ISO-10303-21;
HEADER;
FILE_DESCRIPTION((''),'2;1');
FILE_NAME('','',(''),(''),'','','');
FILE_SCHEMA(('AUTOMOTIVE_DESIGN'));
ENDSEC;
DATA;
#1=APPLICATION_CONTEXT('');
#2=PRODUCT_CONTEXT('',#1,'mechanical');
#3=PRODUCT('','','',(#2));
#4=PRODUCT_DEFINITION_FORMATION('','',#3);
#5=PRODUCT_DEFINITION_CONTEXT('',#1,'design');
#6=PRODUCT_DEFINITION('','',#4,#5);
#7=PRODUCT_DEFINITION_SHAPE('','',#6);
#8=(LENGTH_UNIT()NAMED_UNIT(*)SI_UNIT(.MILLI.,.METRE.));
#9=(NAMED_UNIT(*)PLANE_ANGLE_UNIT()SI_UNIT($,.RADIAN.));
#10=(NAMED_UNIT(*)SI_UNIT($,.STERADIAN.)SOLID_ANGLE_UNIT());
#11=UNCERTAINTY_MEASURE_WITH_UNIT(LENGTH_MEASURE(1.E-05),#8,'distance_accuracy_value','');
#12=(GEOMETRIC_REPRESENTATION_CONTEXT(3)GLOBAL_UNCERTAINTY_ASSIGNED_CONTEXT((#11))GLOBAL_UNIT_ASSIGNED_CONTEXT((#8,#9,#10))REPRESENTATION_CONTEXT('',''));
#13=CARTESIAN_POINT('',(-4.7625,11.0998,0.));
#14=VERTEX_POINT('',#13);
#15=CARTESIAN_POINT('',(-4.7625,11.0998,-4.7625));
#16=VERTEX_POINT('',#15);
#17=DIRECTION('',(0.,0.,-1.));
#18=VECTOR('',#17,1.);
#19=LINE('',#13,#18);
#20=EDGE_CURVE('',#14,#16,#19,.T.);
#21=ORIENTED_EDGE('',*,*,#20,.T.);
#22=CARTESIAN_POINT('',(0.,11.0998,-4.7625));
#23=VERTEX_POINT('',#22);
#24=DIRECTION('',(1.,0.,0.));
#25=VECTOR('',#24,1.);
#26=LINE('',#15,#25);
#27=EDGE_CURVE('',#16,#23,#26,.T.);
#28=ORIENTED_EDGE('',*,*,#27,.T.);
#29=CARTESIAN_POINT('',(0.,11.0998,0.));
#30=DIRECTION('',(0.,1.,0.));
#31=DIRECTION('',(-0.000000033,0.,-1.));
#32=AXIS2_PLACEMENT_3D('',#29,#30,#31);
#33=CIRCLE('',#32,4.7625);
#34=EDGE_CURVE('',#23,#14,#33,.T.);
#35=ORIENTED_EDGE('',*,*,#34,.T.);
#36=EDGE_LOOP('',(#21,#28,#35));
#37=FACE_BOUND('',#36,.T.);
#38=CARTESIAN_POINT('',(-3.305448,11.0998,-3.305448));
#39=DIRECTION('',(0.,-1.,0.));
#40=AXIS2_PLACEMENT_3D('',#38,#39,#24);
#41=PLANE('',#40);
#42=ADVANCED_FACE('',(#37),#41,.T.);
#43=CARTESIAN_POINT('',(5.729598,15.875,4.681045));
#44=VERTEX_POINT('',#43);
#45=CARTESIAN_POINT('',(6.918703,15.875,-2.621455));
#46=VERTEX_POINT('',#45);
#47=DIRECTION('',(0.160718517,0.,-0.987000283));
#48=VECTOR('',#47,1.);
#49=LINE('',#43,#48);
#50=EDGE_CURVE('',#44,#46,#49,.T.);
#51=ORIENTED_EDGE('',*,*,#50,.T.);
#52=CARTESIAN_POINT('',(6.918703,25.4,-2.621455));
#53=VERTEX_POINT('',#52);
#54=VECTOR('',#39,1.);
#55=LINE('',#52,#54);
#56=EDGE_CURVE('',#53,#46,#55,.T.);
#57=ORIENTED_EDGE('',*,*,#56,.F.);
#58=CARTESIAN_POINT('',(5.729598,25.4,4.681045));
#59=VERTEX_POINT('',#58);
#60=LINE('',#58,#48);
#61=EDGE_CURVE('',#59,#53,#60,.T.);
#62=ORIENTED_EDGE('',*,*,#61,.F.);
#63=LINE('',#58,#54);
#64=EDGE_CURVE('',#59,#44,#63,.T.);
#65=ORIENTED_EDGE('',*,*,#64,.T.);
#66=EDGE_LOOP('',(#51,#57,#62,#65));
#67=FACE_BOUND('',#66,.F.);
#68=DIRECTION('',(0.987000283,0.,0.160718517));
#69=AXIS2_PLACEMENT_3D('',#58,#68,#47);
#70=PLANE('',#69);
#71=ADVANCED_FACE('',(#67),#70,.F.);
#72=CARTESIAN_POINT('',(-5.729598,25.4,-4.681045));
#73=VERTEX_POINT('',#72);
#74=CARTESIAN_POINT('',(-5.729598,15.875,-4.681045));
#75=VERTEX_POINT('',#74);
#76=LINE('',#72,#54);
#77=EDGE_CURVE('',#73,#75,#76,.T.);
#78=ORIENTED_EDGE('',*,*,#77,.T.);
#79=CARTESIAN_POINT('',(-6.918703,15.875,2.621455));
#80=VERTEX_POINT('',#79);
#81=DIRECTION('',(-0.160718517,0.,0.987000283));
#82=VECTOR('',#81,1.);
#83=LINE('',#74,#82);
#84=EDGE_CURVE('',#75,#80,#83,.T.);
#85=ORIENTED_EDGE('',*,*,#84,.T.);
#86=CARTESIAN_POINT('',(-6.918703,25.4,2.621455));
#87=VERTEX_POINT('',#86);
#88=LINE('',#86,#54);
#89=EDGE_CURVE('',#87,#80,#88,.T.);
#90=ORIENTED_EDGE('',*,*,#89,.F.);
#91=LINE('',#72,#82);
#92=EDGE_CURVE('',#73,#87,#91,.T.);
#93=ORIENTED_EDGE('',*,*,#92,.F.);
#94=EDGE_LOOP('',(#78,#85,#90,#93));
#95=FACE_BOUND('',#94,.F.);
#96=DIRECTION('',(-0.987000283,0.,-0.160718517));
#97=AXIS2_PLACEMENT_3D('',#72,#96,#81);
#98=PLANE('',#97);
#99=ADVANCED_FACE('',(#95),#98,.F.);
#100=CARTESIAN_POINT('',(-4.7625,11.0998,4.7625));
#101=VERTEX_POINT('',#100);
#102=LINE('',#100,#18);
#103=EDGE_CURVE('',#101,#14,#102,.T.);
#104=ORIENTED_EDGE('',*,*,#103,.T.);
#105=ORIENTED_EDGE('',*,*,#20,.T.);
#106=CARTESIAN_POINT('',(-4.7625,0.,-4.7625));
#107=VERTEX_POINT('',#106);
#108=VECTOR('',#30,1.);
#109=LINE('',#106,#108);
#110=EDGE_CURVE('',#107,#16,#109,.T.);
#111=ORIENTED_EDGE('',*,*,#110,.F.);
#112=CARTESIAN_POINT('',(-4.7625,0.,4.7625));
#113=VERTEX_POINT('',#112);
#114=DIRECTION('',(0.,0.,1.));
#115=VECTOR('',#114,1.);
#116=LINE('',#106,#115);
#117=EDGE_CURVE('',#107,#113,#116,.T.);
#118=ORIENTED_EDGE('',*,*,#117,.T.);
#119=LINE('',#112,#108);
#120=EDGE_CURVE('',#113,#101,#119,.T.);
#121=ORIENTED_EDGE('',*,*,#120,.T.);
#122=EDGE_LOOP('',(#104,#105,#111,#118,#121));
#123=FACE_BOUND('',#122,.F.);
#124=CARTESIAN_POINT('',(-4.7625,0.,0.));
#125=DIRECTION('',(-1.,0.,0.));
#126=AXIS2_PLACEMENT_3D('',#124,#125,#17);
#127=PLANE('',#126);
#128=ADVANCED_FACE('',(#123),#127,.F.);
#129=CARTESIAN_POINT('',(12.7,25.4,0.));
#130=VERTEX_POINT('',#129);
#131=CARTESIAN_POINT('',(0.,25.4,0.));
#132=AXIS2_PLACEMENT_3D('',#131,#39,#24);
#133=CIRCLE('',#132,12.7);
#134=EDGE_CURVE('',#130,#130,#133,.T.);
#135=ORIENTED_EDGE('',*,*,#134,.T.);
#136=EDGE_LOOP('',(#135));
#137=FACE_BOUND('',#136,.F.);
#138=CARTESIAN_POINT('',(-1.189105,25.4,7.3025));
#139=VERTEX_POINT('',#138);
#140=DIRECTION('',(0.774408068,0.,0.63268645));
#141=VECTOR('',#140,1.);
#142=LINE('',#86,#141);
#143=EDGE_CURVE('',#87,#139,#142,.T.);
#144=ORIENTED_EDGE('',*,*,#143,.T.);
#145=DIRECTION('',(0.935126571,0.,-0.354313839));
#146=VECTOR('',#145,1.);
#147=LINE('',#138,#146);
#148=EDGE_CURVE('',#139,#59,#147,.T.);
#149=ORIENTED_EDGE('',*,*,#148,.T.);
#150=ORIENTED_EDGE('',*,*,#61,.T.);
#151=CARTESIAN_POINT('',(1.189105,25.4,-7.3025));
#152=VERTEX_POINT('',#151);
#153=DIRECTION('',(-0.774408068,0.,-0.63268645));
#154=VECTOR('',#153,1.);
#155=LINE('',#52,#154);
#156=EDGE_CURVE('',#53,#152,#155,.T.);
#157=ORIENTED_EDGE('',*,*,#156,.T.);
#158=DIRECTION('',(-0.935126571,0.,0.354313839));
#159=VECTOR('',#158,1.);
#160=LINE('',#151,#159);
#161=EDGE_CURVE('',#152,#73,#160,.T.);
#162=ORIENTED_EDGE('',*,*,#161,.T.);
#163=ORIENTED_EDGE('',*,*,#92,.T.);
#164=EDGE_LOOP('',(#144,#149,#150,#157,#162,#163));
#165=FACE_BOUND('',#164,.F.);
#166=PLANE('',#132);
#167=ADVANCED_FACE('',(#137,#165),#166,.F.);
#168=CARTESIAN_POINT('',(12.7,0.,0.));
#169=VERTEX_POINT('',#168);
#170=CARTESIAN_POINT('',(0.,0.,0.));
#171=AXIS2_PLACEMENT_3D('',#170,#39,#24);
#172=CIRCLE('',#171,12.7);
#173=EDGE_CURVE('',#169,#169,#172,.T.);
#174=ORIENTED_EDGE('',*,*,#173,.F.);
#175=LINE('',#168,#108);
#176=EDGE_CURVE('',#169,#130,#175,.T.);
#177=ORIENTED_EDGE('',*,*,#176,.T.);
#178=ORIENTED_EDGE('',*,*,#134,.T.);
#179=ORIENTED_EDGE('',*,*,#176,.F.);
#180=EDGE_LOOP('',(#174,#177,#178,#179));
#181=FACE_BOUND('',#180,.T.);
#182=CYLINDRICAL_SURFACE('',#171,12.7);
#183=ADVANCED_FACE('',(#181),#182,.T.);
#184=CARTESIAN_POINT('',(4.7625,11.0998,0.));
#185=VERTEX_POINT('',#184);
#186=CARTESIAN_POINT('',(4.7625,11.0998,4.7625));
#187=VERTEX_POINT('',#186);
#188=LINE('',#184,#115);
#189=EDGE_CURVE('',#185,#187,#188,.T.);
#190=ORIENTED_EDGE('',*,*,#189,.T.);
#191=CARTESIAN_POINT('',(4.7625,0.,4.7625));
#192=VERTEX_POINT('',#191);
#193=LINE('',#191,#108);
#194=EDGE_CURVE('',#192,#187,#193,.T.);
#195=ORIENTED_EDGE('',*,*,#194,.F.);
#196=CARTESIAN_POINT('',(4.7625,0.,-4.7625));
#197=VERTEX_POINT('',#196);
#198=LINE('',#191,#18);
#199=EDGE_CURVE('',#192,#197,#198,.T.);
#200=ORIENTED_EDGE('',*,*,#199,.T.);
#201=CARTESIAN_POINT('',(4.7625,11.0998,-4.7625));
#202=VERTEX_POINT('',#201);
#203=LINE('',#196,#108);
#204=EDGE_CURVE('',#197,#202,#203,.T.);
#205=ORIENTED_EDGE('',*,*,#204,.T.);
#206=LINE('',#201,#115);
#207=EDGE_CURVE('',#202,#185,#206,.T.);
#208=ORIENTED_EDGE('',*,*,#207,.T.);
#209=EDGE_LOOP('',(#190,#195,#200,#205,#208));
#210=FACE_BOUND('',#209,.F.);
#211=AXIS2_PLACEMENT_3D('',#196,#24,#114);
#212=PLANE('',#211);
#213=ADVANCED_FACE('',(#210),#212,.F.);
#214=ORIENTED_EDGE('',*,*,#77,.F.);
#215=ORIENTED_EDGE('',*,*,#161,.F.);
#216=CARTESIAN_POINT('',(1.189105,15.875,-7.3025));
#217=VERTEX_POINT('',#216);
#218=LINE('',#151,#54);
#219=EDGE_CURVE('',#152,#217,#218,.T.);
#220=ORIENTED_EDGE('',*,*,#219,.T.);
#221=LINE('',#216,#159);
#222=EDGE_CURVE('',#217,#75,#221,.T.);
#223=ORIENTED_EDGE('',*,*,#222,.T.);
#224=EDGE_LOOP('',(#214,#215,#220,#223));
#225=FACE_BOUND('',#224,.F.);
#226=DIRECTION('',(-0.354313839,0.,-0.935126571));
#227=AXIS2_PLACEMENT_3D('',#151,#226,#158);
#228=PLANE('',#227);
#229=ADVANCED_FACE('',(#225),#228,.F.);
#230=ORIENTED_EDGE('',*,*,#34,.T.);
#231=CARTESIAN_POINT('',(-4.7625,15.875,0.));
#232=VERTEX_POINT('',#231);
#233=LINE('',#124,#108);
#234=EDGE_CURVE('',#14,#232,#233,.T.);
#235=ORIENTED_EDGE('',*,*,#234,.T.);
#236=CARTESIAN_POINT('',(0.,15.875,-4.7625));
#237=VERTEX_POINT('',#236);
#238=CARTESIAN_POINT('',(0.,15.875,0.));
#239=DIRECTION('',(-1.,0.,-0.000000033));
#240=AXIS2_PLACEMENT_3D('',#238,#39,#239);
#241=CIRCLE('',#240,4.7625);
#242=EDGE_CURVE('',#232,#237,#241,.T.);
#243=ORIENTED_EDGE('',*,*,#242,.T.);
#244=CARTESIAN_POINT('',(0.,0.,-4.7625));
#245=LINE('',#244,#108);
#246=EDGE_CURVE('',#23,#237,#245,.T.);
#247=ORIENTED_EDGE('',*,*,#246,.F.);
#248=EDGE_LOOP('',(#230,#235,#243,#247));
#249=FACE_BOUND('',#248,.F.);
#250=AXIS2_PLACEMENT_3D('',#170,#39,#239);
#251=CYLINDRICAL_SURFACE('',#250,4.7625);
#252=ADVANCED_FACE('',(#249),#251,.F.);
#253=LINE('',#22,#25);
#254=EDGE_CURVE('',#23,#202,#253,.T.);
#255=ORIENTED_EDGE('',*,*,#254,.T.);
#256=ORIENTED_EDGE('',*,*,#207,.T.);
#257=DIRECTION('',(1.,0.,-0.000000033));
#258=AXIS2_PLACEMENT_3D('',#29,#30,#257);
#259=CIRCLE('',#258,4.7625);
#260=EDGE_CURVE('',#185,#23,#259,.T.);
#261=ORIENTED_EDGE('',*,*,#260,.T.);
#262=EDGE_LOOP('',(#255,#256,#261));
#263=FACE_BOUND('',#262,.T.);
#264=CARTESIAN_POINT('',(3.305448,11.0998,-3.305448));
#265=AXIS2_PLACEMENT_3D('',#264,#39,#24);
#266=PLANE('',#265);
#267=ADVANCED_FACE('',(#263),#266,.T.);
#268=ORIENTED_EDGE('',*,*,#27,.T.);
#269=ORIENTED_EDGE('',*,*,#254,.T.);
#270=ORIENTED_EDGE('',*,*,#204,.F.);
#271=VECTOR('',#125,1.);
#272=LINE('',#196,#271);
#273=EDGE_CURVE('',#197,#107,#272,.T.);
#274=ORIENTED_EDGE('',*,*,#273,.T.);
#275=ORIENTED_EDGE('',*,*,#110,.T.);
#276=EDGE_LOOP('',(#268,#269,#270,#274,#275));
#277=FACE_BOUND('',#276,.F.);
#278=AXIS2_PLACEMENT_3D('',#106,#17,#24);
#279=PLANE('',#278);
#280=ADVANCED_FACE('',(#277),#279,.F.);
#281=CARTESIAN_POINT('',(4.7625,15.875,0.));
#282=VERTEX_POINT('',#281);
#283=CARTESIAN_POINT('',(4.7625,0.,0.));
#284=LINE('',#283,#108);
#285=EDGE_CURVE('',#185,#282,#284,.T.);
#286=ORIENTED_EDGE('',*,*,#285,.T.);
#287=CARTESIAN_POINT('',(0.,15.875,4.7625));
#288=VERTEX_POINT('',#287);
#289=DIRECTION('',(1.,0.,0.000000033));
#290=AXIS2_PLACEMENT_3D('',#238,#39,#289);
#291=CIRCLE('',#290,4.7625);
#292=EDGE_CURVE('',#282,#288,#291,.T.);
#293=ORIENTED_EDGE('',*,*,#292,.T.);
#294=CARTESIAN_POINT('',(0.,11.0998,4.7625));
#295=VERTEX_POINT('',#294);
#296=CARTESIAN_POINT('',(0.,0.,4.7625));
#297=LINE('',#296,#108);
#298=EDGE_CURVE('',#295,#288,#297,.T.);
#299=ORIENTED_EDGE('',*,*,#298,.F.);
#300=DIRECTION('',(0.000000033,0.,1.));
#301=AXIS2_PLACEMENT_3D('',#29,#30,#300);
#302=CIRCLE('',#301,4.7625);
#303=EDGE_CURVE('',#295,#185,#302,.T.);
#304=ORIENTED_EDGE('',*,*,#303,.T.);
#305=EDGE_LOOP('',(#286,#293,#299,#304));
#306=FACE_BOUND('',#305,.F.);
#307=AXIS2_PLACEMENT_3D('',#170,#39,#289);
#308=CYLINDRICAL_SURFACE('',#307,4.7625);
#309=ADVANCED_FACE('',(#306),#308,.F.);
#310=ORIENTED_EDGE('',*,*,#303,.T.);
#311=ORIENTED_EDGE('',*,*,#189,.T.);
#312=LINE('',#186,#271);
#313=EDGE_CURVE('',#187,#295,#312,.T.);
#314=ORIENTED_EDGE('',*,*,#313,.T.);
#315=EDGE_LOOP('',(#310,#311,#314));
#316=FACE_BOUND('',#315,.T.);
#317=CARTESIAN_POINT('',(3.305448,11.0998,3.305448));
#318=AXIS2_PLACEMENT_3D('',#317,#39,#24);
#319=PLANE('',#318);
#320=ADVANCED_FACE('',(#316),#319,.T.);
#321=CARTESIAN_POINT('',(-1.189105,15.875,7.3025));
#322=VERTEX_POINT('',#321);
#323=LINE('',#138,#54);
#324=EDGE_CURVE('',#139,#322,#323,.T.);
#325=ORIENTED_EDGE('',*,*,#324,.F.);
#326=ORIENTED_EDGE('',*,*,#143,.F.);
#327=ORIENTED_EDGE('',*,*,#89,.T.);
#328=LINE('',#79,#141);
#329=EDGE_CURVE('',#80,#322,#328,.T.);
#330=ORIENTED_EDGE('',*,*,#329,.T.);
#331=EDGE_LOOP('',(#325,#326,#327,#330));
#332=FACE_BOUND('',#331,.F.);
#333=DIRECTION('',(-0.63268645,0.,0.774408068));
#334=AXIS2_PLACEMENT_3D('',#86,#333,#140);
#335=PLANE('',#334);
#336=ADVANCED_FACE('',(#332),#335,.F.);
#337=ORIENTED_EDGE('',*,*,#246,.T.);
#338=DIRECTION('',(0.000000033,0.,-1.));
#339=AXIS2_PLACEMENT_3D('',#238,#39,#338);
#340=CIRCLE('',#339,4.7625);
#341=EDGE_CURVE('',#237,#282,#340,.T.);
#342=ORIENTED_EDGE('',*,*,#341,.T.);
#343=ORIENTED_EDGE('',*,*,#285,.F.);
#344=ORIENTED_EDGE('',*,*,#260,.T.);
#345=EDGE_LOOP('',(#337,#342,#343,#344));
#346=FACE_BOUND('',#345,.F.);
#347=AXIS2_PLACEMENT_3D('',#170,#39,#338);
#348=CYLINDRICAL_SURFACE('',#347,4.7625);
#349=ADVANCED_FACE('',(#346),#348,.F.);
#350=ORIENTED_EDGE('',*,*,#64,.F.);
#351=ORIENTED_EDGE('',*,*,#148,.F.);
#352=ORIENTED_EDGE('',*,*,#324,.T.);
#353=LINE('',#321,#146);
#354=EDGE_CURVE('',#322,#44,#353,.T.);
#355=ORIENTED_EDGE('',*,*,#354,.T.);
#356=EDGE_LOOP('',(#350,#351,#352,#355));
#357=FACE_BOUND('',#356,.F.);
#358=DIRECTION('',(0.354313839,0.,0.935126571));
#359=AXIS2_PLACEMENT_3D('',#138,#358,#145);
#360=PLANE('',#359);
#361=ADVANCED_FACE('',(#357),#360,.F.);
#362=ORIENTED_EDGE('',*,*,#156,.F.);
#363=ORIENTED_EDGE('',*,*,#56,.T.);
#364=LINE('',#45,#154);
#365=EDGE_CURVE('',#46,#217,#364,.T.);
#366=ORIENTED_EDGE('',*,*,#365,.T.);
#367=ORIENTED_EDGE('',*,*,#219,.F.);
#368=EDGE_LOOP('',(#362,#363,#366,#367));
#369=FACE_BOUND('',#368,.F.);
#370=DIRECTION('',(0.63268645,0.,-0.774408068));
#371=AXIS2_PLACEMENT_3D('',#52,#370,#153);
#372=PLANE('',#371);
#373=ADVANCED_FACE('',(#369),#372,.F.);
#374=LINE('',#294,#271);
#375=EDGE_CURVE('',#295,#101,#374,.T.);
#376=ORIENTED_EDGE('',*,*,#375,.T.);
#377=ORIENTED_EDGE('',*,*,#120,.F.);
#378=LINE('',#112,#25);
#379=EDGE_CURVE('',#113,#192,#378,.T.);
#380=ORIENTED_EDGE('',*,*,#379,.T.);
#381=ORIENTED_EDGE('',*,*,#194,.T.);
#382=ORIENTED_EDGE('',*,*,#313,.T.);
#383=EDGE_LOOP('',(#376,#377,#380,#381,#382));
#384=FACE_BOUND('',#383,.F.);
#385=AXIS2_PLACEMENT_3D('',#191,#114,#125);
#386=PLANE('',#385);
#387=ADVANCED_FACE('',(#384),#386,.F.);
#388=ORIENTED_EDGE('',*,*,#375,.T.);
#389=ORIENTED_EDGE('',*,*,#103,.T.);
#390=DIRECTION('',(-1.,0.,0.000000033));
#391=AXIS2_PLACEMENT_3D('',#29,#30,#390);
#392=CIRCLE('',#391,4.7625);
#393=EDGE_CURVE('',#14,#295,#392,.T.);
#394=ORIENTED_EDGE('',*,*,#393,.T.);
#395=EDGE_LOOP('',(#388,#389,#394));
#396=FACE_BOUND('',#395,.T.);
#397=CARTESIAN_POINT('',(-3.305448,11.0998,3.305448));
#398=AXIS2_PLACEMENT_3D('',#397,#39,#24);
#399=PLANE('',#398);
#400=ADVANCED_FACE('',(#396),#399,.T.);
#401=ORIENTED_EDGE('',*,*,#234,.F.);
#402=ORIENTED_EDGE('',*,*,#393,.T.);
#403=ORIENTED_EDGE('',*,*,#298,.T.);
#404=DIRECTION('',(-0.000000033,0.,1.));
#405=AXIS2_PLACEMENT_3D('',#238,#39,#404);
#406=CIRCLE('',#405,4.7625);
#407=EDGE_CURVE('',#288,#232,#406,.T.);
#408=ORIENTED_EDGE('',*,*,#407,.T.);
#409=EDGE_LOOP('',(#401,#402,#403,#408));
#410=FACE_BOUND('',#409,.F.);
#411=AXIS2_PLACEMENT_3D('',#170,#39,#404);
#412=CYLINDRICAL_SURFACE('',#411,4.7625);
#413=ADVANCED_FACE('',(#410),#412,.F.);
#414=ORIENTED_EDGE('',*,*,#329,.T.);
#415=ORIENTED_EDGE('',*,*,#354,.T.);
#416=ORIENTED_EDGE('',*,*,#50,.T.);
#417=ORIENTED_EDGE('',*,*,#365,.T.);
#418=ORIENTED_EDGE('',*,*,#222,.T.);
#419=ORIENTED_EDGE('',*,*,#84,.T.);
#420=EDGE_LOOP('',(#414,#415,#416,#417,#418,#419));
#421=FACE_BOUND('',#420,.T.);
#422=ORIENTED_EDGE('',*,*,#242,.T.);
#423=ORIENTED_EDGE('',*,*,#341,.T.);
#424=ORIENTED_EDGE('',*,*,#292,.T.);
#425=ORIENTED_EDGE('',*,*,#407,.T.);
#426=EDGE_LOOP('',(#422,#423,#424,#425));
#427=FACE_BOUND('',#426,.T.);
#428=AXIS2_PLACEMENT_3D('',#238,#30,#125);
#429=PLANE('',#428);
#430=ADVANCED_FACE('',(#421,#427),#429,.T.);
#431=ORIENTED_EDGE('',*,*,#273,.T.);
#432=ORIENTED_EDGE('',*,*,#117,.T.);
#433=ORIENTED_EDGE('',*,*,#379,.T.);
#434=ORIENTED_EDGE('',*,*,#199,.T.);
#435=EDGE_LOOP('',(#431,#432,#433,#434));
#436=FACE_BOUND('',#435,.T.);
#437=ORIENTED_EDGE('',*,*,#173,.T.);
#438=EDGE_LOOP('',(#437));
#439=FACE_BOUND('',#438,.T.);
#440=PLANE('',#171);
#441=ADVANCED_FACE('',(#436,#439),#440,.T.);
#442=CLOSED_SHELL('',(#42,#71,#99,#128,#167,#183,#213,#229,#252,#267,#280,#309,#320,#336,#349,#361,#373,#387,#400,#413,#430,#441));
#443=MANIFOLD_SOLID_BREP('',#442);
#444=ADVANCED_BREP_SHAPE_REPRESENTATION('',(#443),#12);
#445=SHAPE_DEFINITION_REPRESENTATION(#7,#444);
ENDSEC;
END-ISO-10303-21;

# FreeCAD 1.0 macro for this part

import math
import FreeCAD as App
import Part
import Sketcher
Q = App.Units.Quantity


def add_polygon(sketch, points):
    """Adds a closed chain of lines whose ends are joined by coincident constraints."""
    first, n = sketch.GeometryCount, len(points)
    for a, b in zip(points, points[1:] + points[:1]):
        sketch.addGeometry(Part.LineSegment(App.Vector(*a, 0), App.Vector(*b, 0)), False)
    for i in range(n):
        sketch.addConstraint(Sketcher.Constraint("Coincident", first + i, 2, first + (i + 1) % n, 1))

doc = App.newDocument("Part")
body = doc.addObject("PartDesign::Body", "Body")

# Sketch on XZ plane
sketch1 = body.newObject("Sketcher::SketchObject", "Sketch")
sketch1.AttachmentSupport = (doc.getObject("XZ_Plane"), [""])
sketch1.MapMode = "FlatFace"
sketch1.addGeometry(Part.Circle(App.Vector(0, 0, 0), App.Vector(0, 0, 1), 13), False)
sketch1.addConstraint([
    Sketcher.Constraint("Coincident", 0, 3, -1, 1),
    Sketcher.Constraint("Diameter", 0, Q("1 in")),
])
pad1 = body.newObject("PartDesign::Pad", "Pad")
pad1.Profile = sketch1
pad1.Length = Q("1 in")
pad1.Reversed = True

# Sketch on XZ plane
sketch2 = body.newObject("Sketcher::SketchObject", "Sketch001")
sketch2.AttachmentSupport = (doc.getObject("XZ_Plane"), [""])
sketch2.MapMode = "FlatFace"
sketch2.addGeometry([
    Part.ArcOfCircle(Part.Circle(App.Vector(0, 0, 0), App.Vector(0, 0, 1), 4.8), math.radians(-180), math.radians(-90)),
    Part.ArcOfCircle(Part.Circle(App.Vector(0, 0, 0), App.Vector(0, 0, 1), 4.8), math.radians(-90), math.radians(0)),
    Part.ArcOfCircle(Part.Circle(App.Vector(0, 0, 0), App.Vector(0, 0, 1), 4.8), math.radians(0), math.radians(90)),
    Part.ArcOfCircle(Part.Circle(App.Vector(0, 0, 0), App.Vector(0, 0, 1), 4.8), math.radians(90), math.radians(180)),
], False)
sketch2.addConstraint([
    Sketcher.Constraint("Tangent", 0, 2, 1, 1),
    Sketcher.Constraint("Tangent", 1, 2, 2, 1),
    Sketcher.Constraint("Tangent", 2, 2, 3, 1),
    Sketcher.Constraint("Tangent", 3, 2, 0, 1),
    Sketcher.Constraint("Coincident", 0, 3, -1, 1),
    Sketcher.Constraint("Equal", 0, 1),
    Sketcher.Constraint("PointOnObject", 0, 2, -2),
    Sketcher.Constraint("PointOnObject", 1, 2, -1),
    Sketcher.Constraint("PointOnObject", 2, 2, -2),
    Sketcher.Constraint("PointOnObject", 3, 2, -1),
    Sketcher.Constraint("Radius", 0, Q("0.1875 in")),
])
pocket1 = body.newObject("PartDesign::Pocket", "Pocket")
pocket1.Profile = sketch2
pocket1.Type = "ThroughAll"

# Sketch on XZ plane
sketch3 = body.newObject("Sketcher::SketchObject", "Sketch002")
sketch3.AttachmentSupport = (doc.getObject("XZ_Plane"), [""])
sketch3.MapMode = "FlatFace"
sketch3.addGeometry([
    Part.LineSegment(App.Vector(0, -4.8, 0), App.Vector(4.8, -4.8, 0)),  # 0
    Part.LineSegment(App.Vector(4.8, -4.8, 0), App.Vector(4.8, 0, 0)),  # 1
    Part.ArcOfCircle(Part.Circle(App.Vector(0, 0, 0), App.Vector(0, 0, 1), 4.8), math.radians(-90), math.radians(0)),  # 2
    Part.LineSegment(App.Vector(-4.8, -4.8, 0), App.Vector(0, -4.8, 0)),  # 3
    Part.ArcOfCircle(Part.Circle(App.Vector(0, 0, 0), App.Vector(0, 0, 1), 4.8), math.radians(-180), math.radians(-90)),  # 4
    Part.LineSegment(App.Vector(-4.8, 0, 0), App.Vector(-4.8, -4.8, 0)),  # 5
    Part.ArcOfCircle(Part.Circle(App.Vector(0, 0, 0), App.Vector(0, 0, 1), 4.8), math.radians(0), math.radians(90)),  # 6
    Part.LineSegment(App.Vector(4.8, 0, 0), App.Vector(4.8, 4.8, 0)),  # 7
    Part.LineSegment(App.Vector(4.8, 4.8, 0), App.Vector(0, 4.8, 0)),  # 8
    Part.LineSegment(App.Vector(-4.8, 4.8, 0), App.Vector(-4.8, 0, 0)),  # 9
    Part.ArcOfCircle(Part.Circle(App.Vector(0, 0, 0), App.Vector(0, 0, 1), 4.8), math.radians(90), math.radians(180)),  # 10
    Part.LineSegment(App.Vector(0, 4.8, 0), App.Vector(-4.8, 4.8, 0)),  # 11
], False)
sketch3.addConstraint([
    Sketcher.Constraint("Coincident", 0, 2, 1, 1),
    Sketcher.Constraint("Tangent", 1, 2, 2, 2),
    Sketcher.Constraint("Tangent", 2, 1, 0, 1),
    Sketcher.Constraint("Tangent", 3, 2, 4, 2),
    Sketcher.Constraint("Tangent", 4, 1, 5, 1),
    Sketcher.Constraint("Coincident", 5, 2, 3, 1),
    Sketcher.Constraint("Tangent", 6, 1, 7, 1),
    Sketcher.Constraint("Coincident", 7, 2, 8, 1),
    Sketcher.Constraint("Tangent", 8, 2, 6, 2),
    Sketcher.Constraint("Tangent", 9, 2, 10, 2),
    Sketcher.Constraint("Tangent", 10, 1, 11, 1),
    Sketcher.Constraint("Coincident", 11, 2, 9, 1),
    Sketcher.Constraint("Horizontal", 0),
    Sketcher.Constraint("Vertical", 1),
    Sketcher.Constraint("Horizontal", 3),
    Sketcher.Constraint("Vertical", 5),
    Sketcher.Constraint("Vertical", 7),
    Sketcher.Constraint("Horizontal", 8),
    Sketcher.Constraint("Vertical", 9),
    Sketcher.Constraint("Horizontal", 11),
    Sketcher.Constraint("Coincident", 2, 3, -1, 1),
    Sketcher.Constraint("Coincident", 4, 3, -1, 1),
    Sketcher.Constraint("Coincident", 6, 3, -1, 1),
    Sketcher.Constraint("Coincident", 10, 3, -1, 1),
    Sketcher.Constraint("Equal", 2, 4),
    Sketcher.Constraint("Equal", 4, 6),
    Sketcher.Constraint("Equal", 6, 10),
    Sketcher.Constraint("Radius", 2, Q("0.1875 in")),
])
pocket2 = body.newObject("PartDesign::Pocket", "Pocket001")
pocket2.Profile = sketch3
pocket2.Length = Q("0.437 in")

# Sketch on XZ plane
sketch4 = body.newObject("Sketcher::SketchObject", "Sketch003")
sketch4.AttachmentSupport = (doc.getObject("XZ_Plane"), [""])
sketch4.MapMode = "FlatFace"
sketch4.AttachmentOffset = App.Placement(App.Vector(0, 0, -1 * 25.4), App.Rotation())
add_polygon(sketch4, [(7, -3), (1, -7), (-6, -5), (-7, 3), (-1, 7), (6, 5)])  # lines 0-5
sketch4.addConstraint([
    Sketcher.Constraint("Symmetric", 0, 2, 3, 2, -1, 1),
    Sketcher.Constraint("Symmetric", 1, 2, 4, 2, -1, 1),
    Sketcher.Constraint("Symmetric", 2, 2, 5, 2, -1, 1),
    Sketcher.Constraint("Equal", 0, 1),
    Sketcher.Constraint("Equal", 1, 2),
    Sketcher.Constraint("DistanceY", 0, 2, 3, 2, Q("0.575 in")),
    Sketcher.Constraint("DistanceY", 1, 2, 2, 2, Q("0.2875 in")),
    Sketcher.Constraint("DistanceX", 1, 2, -1, 1, 5.729598),
    Sketcher.Constraint("DistanceX", 2, 2, 4, 2, 12.648301),
])
pocket3 = body.newObject("PartDesign::Pocket", "Pocket002")
pocket3.Profile = sketch4
pocket3.Length = Q("0.375 in")
pocket3.Reversed = True

doc.recompute()
